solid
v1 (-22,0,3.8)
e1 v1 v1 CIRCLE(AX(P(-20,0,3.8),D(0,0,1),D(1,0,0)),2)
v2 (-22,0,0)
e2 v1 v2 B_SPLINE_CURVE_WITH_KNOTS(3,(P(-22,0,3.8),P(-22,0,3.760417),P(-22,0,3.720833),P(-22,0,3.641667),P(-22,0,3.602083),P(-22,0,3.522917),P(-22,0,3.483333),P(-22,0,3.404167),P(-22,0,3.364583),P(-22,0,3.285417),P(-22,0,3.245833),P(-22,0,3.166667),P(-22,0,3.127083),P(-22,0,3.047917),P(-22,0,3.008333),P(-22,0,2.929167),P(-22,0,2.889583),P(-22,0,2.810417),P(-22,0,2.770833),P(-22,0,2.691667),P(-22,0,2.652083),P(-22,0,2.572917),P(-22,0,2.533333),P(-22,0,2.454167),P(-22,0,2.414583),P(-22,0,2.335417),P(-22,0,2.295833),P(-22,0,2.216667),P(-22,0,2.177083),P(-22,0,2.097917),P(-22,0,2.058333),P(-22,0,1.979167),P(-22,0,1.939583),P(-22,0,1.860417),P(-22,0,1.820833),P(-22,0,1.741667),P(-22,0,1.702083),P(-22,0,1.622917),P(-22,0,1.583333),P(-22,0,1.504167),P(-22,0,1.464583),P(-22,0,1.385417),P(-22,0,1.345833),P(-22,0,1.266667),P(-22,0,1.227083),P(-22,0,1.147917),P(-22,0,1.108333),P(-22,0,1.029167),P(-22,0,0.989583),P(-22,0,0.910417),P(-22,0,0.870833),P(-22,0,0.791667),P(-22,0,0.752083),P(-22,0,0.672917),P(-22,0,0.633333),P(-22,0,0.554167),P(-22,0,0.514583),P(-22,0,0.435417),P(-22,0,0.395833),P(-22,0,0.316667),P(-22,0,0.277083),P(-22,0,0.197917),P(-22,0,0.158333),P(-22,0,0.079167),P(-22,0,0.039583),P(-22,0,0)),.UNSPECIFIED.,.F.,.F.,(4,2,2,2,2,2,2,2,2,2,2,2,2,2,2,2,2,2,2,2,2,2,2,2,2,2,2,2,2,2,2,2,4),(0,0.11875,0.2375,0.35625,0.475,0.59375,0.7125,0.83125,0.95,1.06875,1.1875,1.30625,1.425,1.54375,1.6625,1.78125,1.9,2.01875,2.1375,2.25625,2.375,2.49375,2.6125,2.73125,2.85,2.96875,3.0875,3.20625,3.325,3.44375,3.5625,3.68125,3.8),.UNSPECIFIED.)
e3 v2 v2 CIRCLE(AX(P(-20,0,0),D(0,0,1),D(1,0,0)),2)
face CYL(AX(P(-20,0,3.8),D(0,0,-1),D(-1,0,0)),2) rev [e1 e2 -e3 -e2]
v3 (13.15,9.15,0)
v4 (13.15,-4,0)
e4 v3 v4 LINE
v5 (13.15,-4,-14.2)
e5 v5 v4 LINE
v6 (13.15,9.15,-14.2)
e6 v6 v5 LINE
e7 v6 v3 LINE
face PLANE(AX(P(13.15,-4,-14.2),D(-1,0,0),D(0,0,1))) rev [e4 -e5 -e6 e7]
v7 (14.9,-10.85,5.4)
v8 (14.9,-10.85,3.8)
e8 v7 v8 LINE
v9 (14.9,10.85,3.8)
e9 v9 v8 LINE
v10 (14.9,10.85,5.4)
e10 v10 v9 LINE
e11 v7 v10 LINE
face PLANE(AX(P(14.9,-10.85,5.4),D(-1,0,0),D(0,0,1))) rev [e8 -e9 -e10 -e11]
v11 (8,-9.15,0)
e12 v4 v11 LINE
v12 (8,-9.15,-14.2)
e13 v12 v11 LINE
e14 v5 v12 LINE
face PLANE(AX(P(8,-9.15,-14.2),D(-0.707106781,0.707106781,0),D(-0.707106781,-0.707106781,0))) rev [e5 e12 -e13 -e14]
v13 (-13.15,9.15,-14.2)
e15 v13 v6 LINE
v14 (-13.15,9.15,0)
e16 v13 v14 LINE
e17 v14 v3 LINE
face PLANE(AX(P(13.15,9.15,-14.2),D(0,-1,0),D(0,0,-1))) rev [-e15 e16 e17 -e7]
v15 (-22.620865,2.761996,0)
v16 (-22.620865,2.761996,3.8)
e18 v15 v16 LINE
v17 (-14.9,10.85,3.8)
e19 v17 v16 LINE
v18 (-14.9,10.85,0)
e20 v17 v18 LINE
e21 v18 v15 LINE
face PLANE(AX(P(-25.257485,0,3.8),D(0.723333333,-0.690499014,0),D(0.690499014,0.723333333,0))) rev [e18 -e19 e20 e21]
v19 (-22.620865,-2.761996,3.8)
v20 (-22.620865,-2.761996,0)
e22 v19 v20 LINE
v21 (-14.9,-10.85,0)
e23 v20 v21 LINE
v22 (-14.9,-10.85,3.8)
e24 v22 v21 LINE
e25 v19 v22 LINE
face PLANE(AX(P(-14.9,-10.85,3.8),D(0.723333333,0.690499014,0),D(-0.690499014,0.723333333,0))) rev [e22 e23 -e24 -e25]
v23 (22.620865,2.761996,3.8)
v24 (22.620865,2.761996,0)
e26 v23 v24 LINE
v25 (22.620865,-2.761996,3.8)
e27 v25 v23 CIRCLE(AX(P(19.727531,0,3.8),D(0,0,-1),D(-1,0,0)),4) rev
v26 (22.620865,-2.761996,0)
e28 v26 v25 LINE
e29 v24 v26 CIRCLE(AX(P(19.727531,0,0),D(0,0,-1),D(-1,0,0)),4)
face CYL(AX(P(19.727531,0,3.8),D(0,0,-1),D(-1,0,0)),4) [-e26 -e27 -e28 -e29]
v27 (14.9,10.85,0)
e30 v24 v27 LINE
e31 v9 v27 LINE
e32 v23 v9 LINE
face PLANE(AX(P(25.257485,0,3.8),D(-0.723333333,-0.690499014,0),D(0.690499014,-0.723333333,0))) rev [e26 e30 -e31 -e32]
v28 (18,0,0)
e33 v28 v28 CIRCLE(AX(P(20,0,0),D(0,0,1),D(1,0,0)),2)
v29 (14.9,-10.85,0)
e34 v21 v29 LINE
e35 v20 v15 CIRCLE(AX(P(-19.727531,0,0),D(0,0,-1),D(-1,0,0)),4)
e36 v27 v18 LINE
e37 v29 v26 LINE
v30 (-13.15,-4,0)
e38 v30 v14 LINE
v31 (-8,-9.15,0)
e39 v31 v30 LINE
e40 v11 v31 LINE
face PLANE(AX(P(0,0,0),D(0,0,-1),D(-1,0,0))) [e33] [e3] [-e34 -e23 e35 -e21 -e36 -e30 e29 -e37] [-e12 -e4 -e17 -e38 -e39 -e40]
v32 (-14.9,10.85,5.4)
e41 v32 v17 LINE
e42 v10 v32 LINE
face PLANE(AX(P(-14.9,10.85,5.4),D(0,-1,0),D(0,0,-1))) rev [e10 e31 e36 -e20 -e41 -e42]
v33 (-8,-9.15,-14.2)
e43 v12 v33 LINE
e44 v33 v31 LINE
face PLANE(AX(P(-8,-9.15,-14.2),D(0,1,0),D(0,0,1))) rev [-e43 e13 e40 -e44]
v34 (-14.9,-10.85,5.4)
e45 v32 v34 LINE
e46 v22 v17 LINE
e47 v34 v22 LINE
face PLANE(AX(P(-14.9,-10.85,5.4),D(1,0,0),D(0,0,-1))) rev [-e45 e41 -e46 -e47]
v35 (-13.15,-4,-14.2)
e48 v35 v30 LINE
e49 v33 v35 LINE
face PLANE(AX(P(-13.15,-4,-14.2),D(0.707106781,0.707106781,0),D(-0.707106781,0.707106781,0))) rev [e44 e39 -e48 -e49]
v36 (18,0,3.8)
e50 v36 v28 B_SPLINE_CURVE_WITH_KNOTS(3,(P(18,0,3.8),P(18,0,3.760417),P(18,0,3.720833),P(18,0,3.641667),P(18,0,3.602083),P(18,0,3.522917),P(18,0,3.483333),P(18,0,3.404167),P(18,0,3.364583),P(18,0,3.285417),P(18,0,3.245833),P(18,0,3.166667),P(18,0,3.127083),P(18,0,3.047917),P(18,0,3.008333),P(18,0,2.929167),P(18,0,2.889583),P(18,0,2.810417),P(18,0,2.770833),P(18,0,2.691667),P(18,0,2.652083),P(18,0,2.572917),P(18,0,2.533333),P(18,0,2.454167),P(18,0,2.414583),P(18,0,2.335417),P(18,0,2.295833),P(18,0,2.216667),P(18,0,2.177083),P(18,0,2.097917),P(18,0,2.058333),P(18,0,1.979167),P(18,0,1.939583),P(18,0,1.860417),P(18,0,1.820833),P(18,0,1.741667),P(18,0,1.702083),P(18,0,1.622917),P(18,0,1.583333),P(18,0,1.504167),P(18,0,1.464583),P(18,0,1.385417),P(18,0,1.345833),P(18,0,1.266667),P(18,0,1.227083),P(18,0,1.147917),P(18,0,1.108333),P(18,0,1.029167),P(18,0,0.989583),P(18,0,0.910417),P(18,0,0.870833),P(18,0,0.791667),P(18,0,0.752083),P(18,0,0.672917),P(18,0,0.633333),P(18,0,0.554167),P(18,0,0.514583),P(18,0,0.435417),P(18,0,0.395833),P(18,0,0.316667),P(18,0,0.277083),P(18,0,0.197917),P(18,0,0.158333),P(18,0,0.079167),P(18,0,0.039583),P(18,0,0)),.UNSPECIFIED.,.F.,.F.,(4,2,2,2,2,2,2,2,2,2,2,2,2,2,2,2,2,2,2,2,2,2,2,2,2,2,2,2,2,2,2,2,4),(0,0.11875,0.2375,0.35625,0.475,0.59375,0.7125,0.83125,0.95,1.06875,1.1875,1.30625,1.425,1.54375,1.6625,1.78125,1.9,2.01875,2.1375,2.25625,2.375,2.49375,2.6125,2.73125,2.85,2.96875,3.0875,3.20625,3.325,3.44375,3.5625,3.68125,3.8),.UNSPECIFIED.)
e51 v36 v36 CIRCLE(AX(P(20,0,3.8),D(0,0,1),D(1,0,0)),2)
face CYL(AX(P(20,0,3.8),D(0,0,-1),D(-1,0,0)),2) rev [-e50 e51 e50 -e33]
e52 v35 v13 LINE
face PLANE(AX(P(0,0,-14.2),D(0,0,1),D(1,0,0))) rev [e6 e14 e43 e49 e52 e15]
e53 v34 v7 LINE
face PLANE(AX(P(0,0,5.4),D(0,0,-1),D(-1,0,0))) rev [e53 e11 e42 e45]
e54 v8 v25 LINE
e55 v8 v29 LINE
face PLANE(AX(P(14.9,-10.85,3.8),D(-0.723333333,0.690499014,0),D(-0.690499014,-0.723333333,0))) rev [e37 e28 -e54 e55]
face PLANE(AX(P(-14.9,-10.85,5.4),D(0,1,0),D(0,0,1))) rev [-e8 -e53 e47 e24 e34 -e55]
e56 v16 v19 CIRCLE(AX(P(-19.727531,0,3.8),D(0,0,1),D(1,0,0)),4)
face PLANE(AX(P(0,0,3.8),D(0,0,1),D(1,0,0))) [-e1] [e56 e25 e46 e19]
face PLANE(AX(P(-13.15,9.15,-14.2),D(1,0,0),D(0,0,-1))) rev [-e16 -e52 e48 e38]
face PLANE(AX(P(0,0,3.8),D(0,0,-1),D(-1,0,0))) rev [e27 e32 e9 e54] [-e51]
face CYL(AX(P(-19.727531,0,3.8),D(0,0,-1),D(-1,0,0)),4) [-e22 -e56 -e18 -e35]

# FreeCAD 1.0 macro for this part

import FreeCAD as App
import Part
import Sketcher


def edges_at(feature, points):
    """Names of the edges that pass closest to the given points."""
    edges = feature.Shape.Edges
    near = lambda p: min(range(len(edges)), key=lambda i: edges[i].distToShape(Part.Vertex(*p))[0])
    return sorted({f"Edge{near(p) + 1}" for p in points})


def add_polygon(sketch, points):
    """Adds a closed chain of lines whose ends are joined by coincident constraints."""
    first, n = sketch.GeometryCount, len(points)
    for a, b in zip(points, points[1:] + points[:1]):
        sketch.addGeometry(Part.LineSegment(App.Vector(*a, 0), App.Vector(*b, 0)), False)
    for i in range(n):
        sketch.addConstraint(Sketcher.Constraint("Coincident", first + i, 2, first + (i + 1) % n, 1))

doc = App.newDocument("Part")
body = doc.addObject("PartDesign::Body", "Body")

# Sketch on XY plane
sketch1 = doc.addObject("Sketcher::SketchObject", "Sketch")
body.addObject(sketch1)
sketch1.AttachmentSupport = (doc.XY_Plane, [""])
sketch1.MapMode = "FlatFace"
add_polygon(sketch1, [(-15, 11), (-15, -11), (15, -11), (15, 11)])  # lines 0-3
sketch1.addConstraint(Sketcher.Constraint("Vertical", 0))
sketch1.addConstraint(Sketcher.Constraint("Horizontal", 1))
sketch1.addConstraint(Sketcher.Constraint("Vertical", 2))
sketch1.addConstraint(Sketcher.Constraint("Horizontal", 3))
sketch1.addConstraint(Sketcher.Constraint("Symmetric", 0, 2, 2, 2, -1, 1))
sketch1.addConstraint(Sketcher.Constraint("DistanceX", 1, 1, 1, 2, 29.8))
sketch1.addConstraint(Sketcher.Constraint("DistanceY", 0, 2, 0, 1, 21.7))
pad1 = doc.addObject("PartDesign::Pad", "Pad")
body.addObject(pad1)
pad1.Profile = sketch1
pad1.Length = 5.4

# Sketch on XY plane
sketch2 = doc.addObject("Sketcher::SketchObject", "Sketch001")
body.addObject(sketch2)
sketch2.AttachmentSupport = (doc.XY_Plane, [""])
sketch2.MapMode = "FlatFace"
add_polygon(sketch2, [(14.9, 10.8), (14.9, -10.8), (25.3, 0)])  # lines 0-2
sketch2.addGeometry(Part.Circle(App.Vector(20, 0, 0), App.Vector(0, 0, 1), 2), False)  # 3
add_polygon(sketch2, [(-14.9, -10.8), (-14.9, 10.8), (-25.3, 0)])  # lines 4-6
sketch2.addGeometry(Part.Circle(App.Vector(-20, 0, 0), App.Vector(0, 0, 1), 2), False)  # 7
sketch2.addConstraint(Sketcher.Constraint("Vertical", 0))
sketch2.addConstraint(Sketcher.Constraint("Vertical", 4))
sketch2.addConstraint(Sketcher.Constraint("Equal", 3, 7))
sketch2.addConstraint(Sketcher.Constraint("Symmetric", 3, 3, 7, 3, -1, 1))
sketch2.addConstraint(Sketcher.Constraint("Symmetric", 0, 2, 4, 2, -1, 1))
sketch2.addConstraint(Sketcher.Constraint("Symmetric", 1, 2, 5, 2, -1, 1))
sketch2.addConstraint(Sketcher.Constraint("PointOnObject", 3, 3, -1))
sketch2.addConstraint(Sketcher.Constraint("PointOnObject", 1, 2, -1))
sketch2.addConstraint(Sketcher.Constraint("Parallel", 2, 6))
sketch2.addConstraint(Sketcher.Constraint("Horizontal", 2, 2, 4, 2))
sketch2.addConstraint(Sketcher.Constraint("Diameter", 3, 4.0))
sketch2.addConstraint(Sketcher.Constraint("Distance", 1, 15.0))
sketch2.addConstraint(Sketcher.Constraint("DistanceY", 0, 2, 0, 1, 21.7))
sketch2.addConstraint(Sketcher.Constraint("DistanceX", -1, 1, 3, 3, 20.0))
sketch2.addConstraint(Sketcher.Constraint("DistanceX", -1, 1, 0, 2, 14.9))
pad2 = doc.addObject("PartDesign::Pad", "Pad001")
body.addObject(pad2)
pad2.Profile = sketch2
pad2.Length = 3.8
doc.recompute()

fillet = doc.addObject("PartDesign::Fillet", "Fillet")
body.addObject(fillet)
fillet.Base = (pad2, edges_at(pad2, [(25.257, 0, 1.9), (-25.257, 0, 1.9)]))
fillet.Radius = 4

# Sketch on XY plane
sketch3 = doc.addObject("Sketcher::SketchObject", "Sketch002")
body.addObject(sketch3)
sketch3.AttachmentSupport = (doc.XY_Plane, [""])
sketch3.MapMode = "FlatFace"
add_polygon(sketch3, [(-13, 9), (13, 9), (13, -4), (8, -9), (-8, -9), (-13, -4)])  # lines 0-5
sketch3.addConstraint(Sketcher.Constraint("Horizontal", 0))
sketch3.addConstraint(Sketcher.Constraint("Vertical", 1))
sketch3.addConstraint(Sketcher.Constraint("Horizontal", 3))
sketch3.addConstraint(Sketcher.Constraint("Vertical", 5))
sketch3.addConstraint(Sketcher.Constraint("Symmetric", 1, 2, 4, 2, -2))
sketch3.addConstraint(Sketcher.Constraint("Perpendicular", 2, 4))
sketch3.addConstraint(Sketcher.Constraint("Equal", 2, 4))
sketch3.addConstraint(Sketcher.Constraint("DistanceX", 3, 2, 3, 1, 16.0))
sketch3.addConstraint(Sketcher.Constraint("DistanceX", 0, 1, 0, 2, 26.3))
sketch3.addConstraint(Sketcher.Constraint("DistanceY", 1, 2, -1, 1, 4.0))
sketch3.addConstraint(Sketcher.Constraint("DistanceY", 1, 2, 1, 1, 13.15))
pad3 = doc.addObject("PartDesign::Pad", "Pad002")
body.addObject(pad3)
pad3.Profile = sketch3
pad3.Length = 14.2
pad3.Reversed = True

doc.recompute()
